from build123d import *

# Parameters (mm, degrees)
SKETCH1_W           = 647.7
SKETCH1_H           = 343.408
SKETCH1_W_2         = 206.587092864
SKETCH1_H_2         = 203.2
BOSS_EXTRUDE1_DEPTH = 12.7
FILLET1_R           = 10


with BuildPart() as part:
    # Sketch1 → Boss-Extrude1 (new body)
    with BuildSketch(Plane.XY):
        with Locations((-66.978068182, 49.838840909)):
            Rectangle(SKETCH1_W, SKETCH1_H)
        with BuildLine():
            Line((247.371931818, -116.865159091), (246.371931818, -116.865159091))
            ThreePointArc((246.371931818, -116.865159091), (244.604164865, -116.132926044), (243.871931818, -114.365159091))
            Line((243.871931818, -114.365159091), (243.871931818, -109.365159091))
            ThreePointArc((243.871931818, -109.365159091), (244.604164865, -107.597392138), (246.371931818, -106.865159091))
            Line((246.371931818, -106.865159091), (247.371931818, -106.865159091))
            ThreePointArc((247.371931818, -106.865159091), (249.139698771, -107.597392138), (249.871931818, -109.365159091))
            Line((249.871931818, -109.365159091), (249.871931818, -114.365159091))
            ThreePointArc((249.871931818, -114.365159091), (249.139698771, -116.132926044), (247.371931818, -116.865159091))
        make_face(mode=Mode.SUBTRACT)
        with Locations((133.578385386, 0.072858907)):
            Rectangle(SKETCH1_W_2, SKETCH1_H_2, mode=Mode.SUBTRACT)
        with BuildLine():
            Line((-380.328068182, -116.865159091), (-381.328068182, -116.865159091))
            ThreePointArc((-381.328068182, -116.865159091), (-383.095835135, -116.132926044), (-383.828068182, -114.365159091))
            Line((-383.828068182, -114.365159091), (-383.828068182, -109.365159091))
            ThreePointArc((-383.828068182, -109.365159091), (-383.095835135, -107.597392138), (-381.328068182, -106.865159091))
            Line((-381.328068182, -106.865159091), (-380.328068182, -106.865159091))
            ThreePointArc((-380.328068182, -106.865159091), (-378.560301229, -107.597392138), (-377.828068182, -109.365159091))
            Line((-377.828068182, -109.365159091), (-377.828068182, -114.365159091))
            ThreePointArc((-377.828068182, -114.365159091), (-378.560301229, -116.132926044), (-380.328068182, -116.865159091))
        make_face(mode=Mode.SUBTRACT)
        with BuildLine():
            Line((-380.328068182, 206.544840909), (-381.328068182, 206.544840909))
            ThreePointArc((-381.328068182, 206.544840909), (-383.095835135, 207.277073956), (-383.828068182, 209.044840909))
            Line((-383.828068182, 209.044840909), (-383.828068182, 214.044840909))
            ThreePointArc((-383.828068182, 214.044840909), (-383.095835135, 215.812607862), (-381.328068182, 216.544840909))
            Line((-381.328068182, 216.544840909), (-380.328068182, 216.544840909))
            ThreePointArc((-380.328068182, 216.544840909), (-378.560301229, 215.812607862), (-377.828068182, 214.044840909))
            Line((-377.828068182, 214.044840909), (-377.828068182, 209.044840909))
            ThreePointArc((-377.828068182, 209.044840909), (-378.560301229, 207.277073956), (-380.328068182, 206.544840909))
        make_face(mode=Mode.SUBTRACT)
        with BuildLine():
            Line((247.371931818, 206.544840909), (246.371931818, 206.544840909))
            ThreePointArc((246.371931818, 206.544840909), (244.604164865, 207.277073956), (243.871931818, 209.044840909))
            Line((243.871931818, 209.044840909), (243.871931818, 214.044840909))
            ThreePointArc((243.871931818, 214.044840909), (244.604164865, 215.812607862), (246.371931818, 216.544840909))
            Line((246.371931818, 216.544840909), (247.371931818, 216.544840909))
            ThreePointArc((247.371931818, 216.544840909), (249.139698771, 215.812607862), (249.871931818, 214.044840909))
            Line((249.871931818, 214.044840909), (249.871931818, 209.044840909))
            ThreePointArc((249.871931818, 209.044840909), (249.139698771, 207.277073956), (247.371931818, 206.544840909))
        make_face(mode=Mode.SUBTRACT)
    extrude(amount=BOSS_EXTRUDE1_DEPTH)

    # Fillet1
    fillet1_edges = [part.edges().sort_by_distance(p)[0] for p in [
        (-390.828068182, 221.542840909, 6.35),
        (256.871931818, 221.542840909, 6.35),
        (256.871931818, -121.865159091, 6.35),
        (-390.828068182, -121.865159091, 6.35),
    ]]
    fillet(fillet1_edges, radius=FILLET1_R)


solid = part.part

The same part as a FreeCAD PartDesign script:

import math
import FreeCAD as App
import Part
import Sketcher
Q = App.Units.Quantity


def edges_at(feature, points):
    """Names of the edges that pass closest to the given points."""
    edges = feature.Shape.Edges
    near = lambda p: min(range(len(edges)), key=lambda i: edges[i].distToShape(Part.Vertex(*p))[0])
    return sorted({f"Edge{near(p) + 1}" for p in points})

doc = App.newDocument("Part")
body = doc.addObject("PartDesign::Body", "Body")

# Sketch on XY plane
sketch1 = body.newObject("Sketcher::SketchObject", "Sketch")
sketch1.AttachmentSupport = (doc.getObject("XY_Plane"), [""])
sketch1.MapMode = "FlatFace"
sketch1.addGeometry([
    Part.LineSegment(App.Vector(-390.8, 221.5, 0), App.Vector(-390.8, -121.9, 0)),  # 0
    Part.LineSegment(App.Vector(-390.8, -121.9, 0), App.Vector(256.9, -121.9, 0)),  # 1
    Part.LineSegment(App.Vector(256.9, -121.9, 0), App.Vector(256.9, 221.5, 0)),  # 2
    Part.LineSegment(App.Vector(256.9, 221.5, 0), App.Vector(-390.8, 221.5, 0)),  # 3
    Part.ArcOfCircle(Part.Circle(App.Vector(-380.3, -114.4, 0), App.Vector(0, 0, 1), 2.5), math.radians(-90), math.radians(0)),  # 4
    Part.LineSegment(App.Vector(-380.3, -116.9, 0), App.Vector(-381.3, -116.9, 0)),  # 5
    Part.ArcOfCircle(Part.Circle(App.Vector(-381.3, -114.4, 0), App.Vector(0, 0, 1), 2.5), math.radians(180), math.radians(270)),  # 6
    Part.LineSegment(App.Vector(-383.8, -114.4, 0), App.Vector(-383.8, -109.4, 0)),  # 7
    Part.ArcOfCircle(Part.Circle(App.Vector(-381.3, -109.4, 0), App.Vector(0, 0, 1), 2.5), math.radians(90), math.radians(180)),  # 8
    Part.LineSegment(App.Vector(-381.3, -106.9, 0), App.Vector(-380.3, -106.9, 0)),  # 9
    Part.ArcOfCircle(Part.Circle(App.Vector(-380.3, -109.4, 0), App.Vector(0, 0, 1), 2.5), math.radians(0), math.radians(90)),  # 10
    Part.LineSegment(App.Vector(-377.8, -109.4, 0), App.Vector(-377.8, -114.4, 0)),  # 11
    Part.ArcOfCircle(Part.Circle(App.Vector(247.4, -114.4, 0), App.Vector(0, 0, 1), 2.5), math.radians(-90), math.radians(0)),  # 12
    Part.LineSegment(App.Vector(247.4, -116.9, 0), App.Vector(246.4, -116.9, 0)),  # 13
    Part.ArcOfCircle(Part.Circle(App.Vector(246.4, -114.4, 0), App.Vector(0, 0, 1), 2.5), math.radians(180), math.radians(270)),  # 14
    Part.LineSegment(App.Vector(243.9, -114.4, 0), App.Vector(243.9, -109.4, 0)),  # 15
    Part.ArcOfCircle(Part.Circle(App.Vector(246.4, -109.4, 0), App.Vector(0, 0, 1), 2.5), math.radians(90), math.radians(180)),  # 16
    Part.LineSegment(App.Vector(246.4, -106.9, 0), App.Vector(247.4, -106.9, 0)),  # 17
    Part.ArcOfCircle(Part.Circle(App.Vector(247.4, -109.4, 0), App.Vector(0, 0, 1), 2.5), math.radians(0), math.radians(90)),  # 18
    Part.LineSegment(App.Vector(249.9, -109.4, 0), App.Vector(249.9, -114.4, 0)),  # 19
    Part.LineSegment(App.Vector(236.9, -101.5, 0), App.Vector(30.3, -101.5, 0)),  # 20
    Part.LineSegment(App.Vector(30.3, -101.5, 0), App.Vector(30.3, 101.7, 0)),  # 21
    Part.LineSegment(App.Vector(30.3, 101.7, 0), App.Vector(236.9, 101.7, 0)),  # 22
    Part.LineSegment(App.Vector(236.9, 101.7, 0), App.Vector(236.9, -101.5, 0)),  # 23
    Part.ArcOfCircle(Part.Circle(App.Vector(-380.3, 209, 0), App.Vector(0, 0, 1), 2.5), math.radians(-90), math.radians(0)),  # 24
    Part.LineSegment(App.Vector(-380.3, 206.5, 0), App.Vector(-381.3, 206.5, 0)),  # 25
    Part.ArcOfCircle(Part.Circle(App.Vector(-381.3, 209, 0), App.Vector(0, 0, 1), 2.5), math.radians(180), math.radians(270)),  # 26
    Part.LineSegment(App.Vector(-383.8, 209, 0), App.Vector(-383.8, 214, 0)),  # 27
    Part.ArcOfCircle(Part.Circle(App.Vector(-381.3, 214, 0), App.Vector(0, 0, 1), 2.5), math.radians(90), math.radians(180)),  # 28
    Part.LineSegment(App.Vector(-381.3, 216.5, 0), App.Vector(-380.3, 216.5, 0)),  # 29
    Part.ArcOfCircle(Part.Circle(App.Vector(-380.3, 214, 0), App.Vector(0, 0, 1), 2.5), math.radians(0), math.radians(90)),  # 30
    Part.LineSegment(App.Vector(-377.8, 214, 0), App.Vector(-377.8, 209, 0)),  # 31
    Part.ArcOfCircle(Part.Circle(App.Vector(247.4, 209, 0), App.Vector(0, 0, 1), 2.5), math.radians(-90), math.radians(0)),  # 32
    Part.LineSegment(App.Vector(247.4, 206.5, 0), App.Vector(246.4, 206.5, 0)),  # 33
    Part.ArcOfCircle(Part.Circle(App.Vector(246.4, 209, 0), App.Vector(0, 0, 1), 2.5), math.radians(180), math.radians(270)),  # 34
    Part.LineSegment(App.Vector(243.9, 209, 0), App.Vector(243.9, 214, 0)),  # 35
    Part.ArcOfCircle(Part.Circle(App.Vector(246.4, 214, 0), App.Vector(0, 0, 1), 2.5), math.radians(90), math.radians(180)),  # 36
    Part.LineSegment(App.Vector(246.4, 216.5, 0), App.Vector(247.4, 216.5, 0)),  # 37
    Part.ArcOfCircle(Part.Circle(App.Vector(247.4, 214, 0), App.Vector(0, 0, 1), 2.5), math.radians(0), math.radians(90)),  # 38
    Part.LineSegment(App.Vector(249.9, 214, 0), App.Vector(249.9, 209, 0)),  # 39
], False)
sketch1.addConstraint([
    Sketcher.Constraint("Coincident", 0, 2, 1, 1),
    Sketcher.Constraint("Coincident", 1, 2, 2, 1),
    Sketcher.Constraint("Coincident", 2, 2, 3, 1),
    Sketcher.Constraint("Coincident", 3, 2, 0, 1),
    Sketcher.Constraint("Tangent", 4, 1, 5, 1),
    Sketcher.Constraint("Tangent", 5, 2, 6, 2),
    Sketcher.Constraint("Tangent", 6, 1, 7, 1),
    Sketcher.Constraint("Tangent", 7, 2, 8, 2),
    Sketcher.Constraint("Tangent", 8, 1, 9, 1),
    Sketcher.Constraint("Tangent", 9, 2, 10, 2),
    Sketcher.Constraint("Tangent", 10, 1, 11, 1),
    Sketcher.Constraint("Tangent", 11, 2, 4, 2),
    Sketcher.Constraint("Tangent", 12, 1, 13, 1),
    Sketcher.Constraint("Tangent", 13, 2, 14, 2),
    Sketcher.Constraint("Tangent", 14, 1, 15, 1),
    Sketcher.Constraint("Tangent", 15, 2, 16, 2),
    Sketcher.Constraint("Tangent", 16, 1, 17, 1),
    Sketcher.Constraint("Tangent", 17, 2, 18, 2),
    Sketcher.Constraint("Tangent", 18, 1, 19, 1),
    Sketcher.Constraint("Tangent", 19, 2, 12, 2),
    Sketcher.Constraint("Coincident", 20, 2, 21, 1),
    Sketcher.Constraint("Coincident", 21, 2, 22, 1),
    Sketcher.Constraint("Coincident", 22, 2, 23, 1),
    Sketcher.Constraint("Coincident", 23, 2, 20, 1),
    Sketcher.Constraint("Tangent", 24, 1, 25, 1),
    Sketcher.Constraint("Tangent", 25, 2, 26, 2),
    Sketcher.Constraint("Tangent", 26, 1, 27, 1),
    Sketcher.Constraint("Tangent", 27, 2, 28, 2),
    Sketcher.Constraint("Tangent", 28, 1, 29, 1),
    Sketcher.Constraint("Tangent", 29, 2, 30, 2),
    Sketcher.Constraint("Tangent", 30, 1, 31, 1),
    Sketcher.Constraint("Tangent", 31, 2, 24, 2),
    Sketcher.Constraint("Tangent", 32, 1, 33, 1),
    Sketcher.Constraint("Tangent", 33, 2, 34, 2),
    Sketcher.Constraint("Tangent", 34, 1, 35, 1),
    Sketcher.Constraint("Tangent", 35, 2, 36, 2),
    Sketcher.Constraint("Tangent", 36, 1, 37, 1),
    Sketcher.Constraint("Tangent", 37, 2, 38, 2),
    Sketcher.Constraint("Tangent", 38, 1, 39, 1),
    Sketcher.Constraint("Tangent", 39, 2, 32, 2),
    Sketcher.Constraint("Vertical", 0),
    Sketcher.Constraint("Horizontal", 1),
    Sketcher.Constraint("Vertical", 2),
    Sketcher.Constraint("Horizontal", 3),
    Sketcher.Constraint("Horizontal", 5),
    Sketcher.Constraint("Vertical", 7),
    Sketcher.Constraint("Horizontal", 9),
    Sketcher.Constraint("Vertical", 11),
    Sketcher.Constraint("Horizontal", 13),
    Sketcher.Constraint("Vertical", 15),
    Sketcher.Constraint("Horizontal", 17),
    Sketcher.Constraint("Vertical", 19),
    Sketcher.Constraint("Horizontal", 20),
    Sketcher.Constraint("Vertical", 21),
    Sketcher.Constraint("Horizontal", 22),
    Sketcher.Constraint("Vertical", 23),
    Sketcher.Constraint("Horizontal", 25),
    Sketcher.Constraint("Vertical", 27),
    Sketcher.Constraint("Horizontal", 29),
    Sketcher.Constraint("Vertical", 31),
    Sketcher.Constraint("Horizontal", 33),
    Sketcher.Constraint("Vertical", 35),
    Sketcher.Constraint("Horizontal", 37),
    Sketcher.Constraint("Vertical", 39),
    Sketcher.Constraint("Equal", 4, 6),
    Sketcher.Constraint("Equal", 6, 8),
    Sketcher.Constraint("Equal", 8, 10),
    Sketcher.Constraint("Equal", 10, 12),
    Sketcher.Constraint("Equal", 12, 14),
    Sketcher.Constraint("Equal", 14, 16),
    Sketcher.Constraint("Equal", 16, 18),
    Sketcher.Constraint("Equal", 18, 24),
    Sketcher.Constraint("Equal", 24, 26),
    Sketcher.Constraint("Equal", 26, 28),
    Sketcher.Constraint("Equal", 28, 30),
    Sketcher.Constraint("Equal", 30, 32),
    Sketcher.Constraint("Equal", 32, 34),
    Sketcher.Constraint("Equal", 34, 36),
    Sketcher.Constraint("Equal", 36, 38),
    Sketcher.Constraint("Horizontal", 6, 3, 12, 3),
    Sketcher.Constraint("Horizontal", 10, 3, 16, 3),
    Sketcher.Constraint("Horizontal", 26, 3, 32, 3),
    Sketcher.Constraint("Horizontal", 30, 3, 36, 3),
    Sketcher.Constraint("Vertical", 10, 3, 24, 3),
    Sketcher.Constraint("Vertical", 8, 3, 26, 3),
    Sketcher.Constraint("Vertical", 18, 3, 32, 3),
    Sketcher.Constraint("Vertical", 16, 3, 34, 3),
    Sketcher.Constraint("Equal", 9, 13),
    Sketcher.Constraint("Equal", 19, 27),
    Sketcher.Constraint("DistanceY", 21, 1, 21, 2, Q("8 in")),
    Sketcher.Constraint("DistanceX", 1, 1, 1, 2, Q("25.5 in")),
    Sketcher.Constraint("DistanceY", 0, 2, 0, 1, Q("13.52 in")),
    Sketcher.Constraint("Radius", 4, Q("2.5 mm")),
    Sketcher.Constraint("DistanceX", 5, 2, 5, 1, Q("1 mm")),
    Sketcher.Constraint("DistanceY", 7, 1, 7, 2, Q("5 mm")),
    Sketcher.Constraint("DistanceX", 4, 3, 12, 3, Q("627.7 mm")),
    Sketcher.Constraint("DistanceY", 10, 3, 24, 3, Q("318.41 mm")),
    Sketcher.Constraint("DistanceX", 0, 2, 6, 3, Q("9.5 mm")),
    Sketcher.Constraint("DistanceY", 0, 2, 6, 3, Q("7.5 mm")),
    Sketcher.Constraint("DistanceX", 22, 2, 34, 3, Q("9.5 mm")),
    Sketcher.Constraint("DistanceX", 20, 2, 20, 1, Q("206.587093 mm")),
    Sketcher.Constraint("DistanceX", 4, 3, -1, 1, Q("380.328068 mm")),
    Sketcher.Constraint("DistanceY", 4, 3, -1, 1, Q("114.365159 mm")),
    Sketcher.Constraint("DistanceY", 20, 2, -1, 1, Q("101.527141 mm")),
])
pad1 = body.newObject("PartDesign::Pad", "Pad")
pad1.Profile = sketch1
pad1.Length = Q("0.5 in")
doc.recompute()

fillet = body.newObject("PartDesign::Fillet", "Fillet")
fillet.Base = (pad1, edges_at(pad1, [
    (-390.828, 221.543, 6.35),
    (256.872, 221.543, 6.35),
    (256.872, -121.865, 6.35),
    (-390.828, -121.865, 6.35),
]))
fillet.Radius = 10

doc.recompute()
